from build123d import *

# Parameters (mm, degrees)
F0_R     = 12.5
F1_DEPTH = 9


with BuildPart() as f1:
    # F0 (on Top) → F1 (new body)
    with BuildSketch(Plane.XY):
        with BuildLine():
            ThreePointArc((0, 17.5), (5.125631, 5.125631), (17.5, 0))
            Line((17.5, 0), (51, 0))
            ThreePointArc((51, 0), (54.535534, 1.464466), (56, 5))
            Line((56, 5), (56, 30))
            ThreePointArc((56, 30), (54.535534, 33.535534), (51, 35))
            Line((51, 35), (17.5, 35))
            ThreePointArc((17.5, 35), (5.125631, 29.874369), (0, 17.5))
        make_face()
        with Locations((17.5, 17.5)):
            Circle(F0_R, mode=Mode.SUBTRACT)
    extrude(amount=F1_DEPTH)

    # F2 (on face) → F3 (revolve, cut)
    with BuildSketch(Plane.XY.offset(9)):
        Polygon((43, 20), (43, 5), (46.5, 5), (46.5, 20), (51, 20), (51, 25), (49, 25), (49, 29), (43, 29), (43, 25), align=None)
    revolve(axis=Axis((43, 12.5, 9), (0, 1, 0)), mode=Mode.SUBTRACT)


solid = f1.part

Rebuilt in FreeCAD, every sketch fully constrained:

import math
import FreeCAD as App
import Part
import Sketcher
from FreeCAD import Vector
Q = App.Units.Quantity

doc = App.newDocument("Part")
body = doc.addObject("PartDesign::Body", "Body")

# Sketch on XY plane
sketch1 = doc.addObject("Sketcher::SketchObject", "Sketch")
body.addObject(sketch1)
sketch1.AttachmentSupport = (doc.XY_Plane, [""])
sketch1.MapMode = "FlatFace"
sketch1.addGeometry(Part.ArcOfCircle(Part.Circle(Vector(17.5, 17.5, 0), Vector(0, 0, 1), 17.5), math.radians(180), math.radians(270)), False)
sketch1.addGeometry(Part.LineSegment(Vector(17.5, 0, 0), Vector(51, 0, 0)), False)
sketch1.addGeometry(Part.ArcOfCircle(Part.Circle(Vector(51, 5, 0), Vector(0, 0, 1), 5), math.radians(-90), math.radians(0)), False)
sketch1.addGeometry(Part.LineSegment(Vector(56, 5, 0), Vector(56, 30, 0)), False)
sketch1.addGeometry(Part.ArcOfCircle(Part.Circle(Vector(51, 30, 0), Vector(0, 0, 1), 5), math.radians(0), math.radians(90)), False)
sketch1.addGeometry(Part.LineSegment(Vector(51, 35, 0), Vector(17.5, 35, 0)), False)
sketch1.addGeometry(Part.ArcOfCircle(Part.Circle(Vector(17.5, 17.5, 0), Vector(0, 0, 1), 17.5), math.radians(90), math.radians(180)), False)
sketch1.addGeometry(Part.Circle(Vector(17.5, 17.5, 0), Vector(0, 0, 1), 12.5), False)
sketch1.addConstraint(Sketcher.Constraint("Tangent", 0, 2, 1, 1))
sketch1.addConstraint(Sketcher.Constraint("Tangent", 1, 2, 2, 1))
sketch1.addConstraint(Sketcher.Constraint("Tangent", 2, 2, 3, 1))
sketch1.addConstraint(Sketcher.Constraint("Tangent", 3, 2, 4, 1))
sketch1.addConstraint(Sketcher.Constraint("Tangent", 4, 2, 5, 1))
sketch1.addConstraint(Sketcher.Constraint("Tangent", 5, 2, 6, 1))
sketch1.addConstraint(Sketcher.Constraint("Tangent", 6, 2, 0, 1))
sketch1.addConstraint(Sketcher.Constraint("Horizontal", 1))
sketch1.addConstraint(Sketcher.Constraint("Vertical", 3))
sketch1.addConstraint(Sketcher.Constraint("Horizontal", 5))
sketch1.addConstraint(Sketcher.Constraint("Coincident", 7, 3, 0, 3))
sketch1.addConstraint(Sketcher.Constraint("Equal", 2, 4))
sketch1.addConstraint(Sketcher.Constraint("Equal", 0, 6))
sketch1.addConstraint(Sketcher.Constraint("PointOnObject", 0, 2, -1))
sketch1.addConstraint(Sketcher.Constraint("PointOnObject", 6, 2, -2))
sketch1.addConstraint(Sketcher.Constraint("Horizontal", 7, 3, 6, 2))
sketch1.addConstraint(Sketcher.Constraint("Diameter", 7, Q("25 mm")))
sketch1.addConstraint(Sketcher.Constraint("Radius", 2, Q("5 mm")))
sketch1.addConstraint(Sketcher.Constraint("Radius", 0, Q("17.499999 mm")))
sketch1.addConstraint(Sketcher.Constraint("DistanceX", 1, 1, 1, 2, Q("33.5 mm")))
pad1 = doc.addObject("PartDesign::Pad", "Pad")
body.addObject(pad1)
pad1.Profile = sketch1
pad1.Length = 9

# Sketch on XY plane
sketch2 = doc.addObject("Sketcher::SketchObject", "Sketch001")
body.addObject(sketch2)
sketch2.AttachmentSupport = (doc.XY_Plane, [""])
sketch2.MapMode = "FlatFace"
sketch2.AttachmentOffset = App.Placement(Vector(0, 0, 9), App.Rotation())
sketch2.addGeometry(Part.LineSegment(Vector(43, 5, 0), Vector(46.5, 5, 0)), False)
sketch2.addGeometry(Part.LineSegment(Vector(46.5, 5, 0), Vector(46.5, 20, 0)), False)
sketch2.addGeometry(Part.LineSegment(Vector(46.5, 20, 0), Vector(51, 20, 0)), False)
sketch2.addGeometry(Part.LineSegment(Vector(51, 20, 0), Vector(51, 25, 0)), False)
sketch2.addGeometry(Part.LineSegment(Vector(51, 25, 0), Vector(49, 25, 0)), False)
sketch2.addGeometry(Part.LineSegment(Vector(49, 25, 0), Vector(49, 29, 0)), False)
sketch2.addGeometry(Part.LineSegment(Vector(49, 29, 0), Vector(43, 29, 0)), False)
sketch2.addGeometry(Part.LineSegment(Vector(43, 29, 0), Vector(43, 5, 0)), False)
sketch2.addGeometry(Part.LineSegment(Vector(43, 5, 0), Vector(43, 29, 0)), True)  # axis
sketch2.addConstraint(Sketcher.Constraint("Coincident", 0, 2, 1, 1))
sketch2.addConstraint(Sketcher.Constraint("Coincident", 1, 2, 2, 1))
sketch2.addConstraint(Sketcher.Constraint("Coincident", 2, 2, 3, 1))
sketch2.addConstraint(Sketcher.Constraint("Coincident", 3, 2, 4, 1))
sketch2.addConstraint(Sketcher.Constraint("Coincident", 4, 2, 5, 1))
sketch2.addConstraint(Sketcher.Constraint("Coincident", 5, 2, 6, 1))
sketch2.addConstraint(Sketcher.Constraint("Coincident", 6, 2, 7, 1))
sketch2.addConstraint(Sketcher.Constraint("Coincident", 7, 2, 0, 1))
sketch2.addConstraint(Sketcher.Constraint("Horizontal", 0))
sketch2.addConstraint(Sketcher.Constraint("Vertical", 1))
sketch2.addConstraint(Sketcher.Constraint("Horizontal", 2))
sketch2.addConstraint(Sketcher.Constraint("Vertical", 3))
sketch2.addConstraint(Sketcher.Constraint("Horizontal", 4))
sketch2.addConstraint(Sketcher.Constraint("Vertical", 5))
sketch2.addConstraint(Sketcher.Constraint("Horizontal", 6))
sketch2.addConstraint(Sketcher.Constraint("Vertical", 7))
sketch2.addConstraint(Sketcher.Constraint("Vertical", 8))
sketch2.addConstraint(Sketcher.Constraint("Coincident", 8, 1, 7, 2))
sketch2.addConstraint(Sketcher.Constraint("Horizontal", 5, 2, 8, 2))
sketch2.addConstraint(Sketcher.Constraint("DistanceX", 4, 2, 4, 1, Q("2 mm")))
sketch2.addConstraint(Sketcher.Constraint("DistanceX", 6, 2, 6, 1, Q("6 mm")))
sketch2.addConstraint(Sketcher.Constraint("DistanceY", 1, 1, 1, 2, Q("15 mm")))
sketch2.addConstraint(Sketcher.Constraint("DistanceY", 3, 1, 3, 2, Q("5 mm")))
sketch2.addConstraint(Sketcher.Constraint("DistanceY", 5, 1, 5, 2, Q("4 mm")))
sketch2.addConstraint(Sketcher.Constraint("DistanceX", 0, 1, 0, 2, Q("3.5 mm")))
sketch2.addConstraint(Sketcher.Constraint("DistanceY", -1, 1, 0, 2, Q("5 mm")))
sketch2.addConstraint(Sketcher.Constraint("DistanceX", -1, 1, 2, 2, Q("51 mm")))
groove = doc.addObject("PartDesign::Groove", "Groove")
body.addObject(groove)
groove.Profile = sketch2
groove.ReferenceAxis = (sketch2, ["Axis0"])
groove.Angle = 360

doc.recompute()
